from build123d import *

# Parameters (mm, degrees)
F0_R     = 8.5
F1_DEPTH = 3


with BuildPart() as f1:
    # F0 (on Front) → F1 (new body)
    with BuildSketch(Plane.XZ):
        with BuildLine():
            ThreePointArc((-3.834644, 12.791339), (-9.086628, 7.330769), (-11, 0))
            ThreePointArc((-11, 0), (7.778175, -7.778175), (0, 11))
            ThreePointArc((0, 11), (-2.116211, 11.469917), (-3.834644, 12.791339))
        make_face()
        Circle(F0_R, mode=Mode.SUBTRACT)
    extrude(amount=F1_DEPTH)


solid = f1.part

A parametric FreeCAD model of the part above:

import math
import FreeCAD as App
import Part
import Sketcher

V = App.Vector

doc = App.newDocument("Part")
body = doc.addObject("PartDesign::Body", "Body")

# Sketch on XZ plane
sketch1 = doc.addObject("Sketcher::SketchObject", "Sketch")
body.addObject(sketch1)
sketch1.AttachmentSupport = (doc.XZ_Plane, [""])
sketch1.MapMode = "FlatFace"
sketch1.addGeometry(Part.ArcOfCircle(Part.Circle(V(4, 0, 0), V(0, 0, 1), 15), math.radians(121), math.radians(180)), False)
sketch1.addGeometry(Part.ArcOfCircle(Part.Circle(V(0, 0, 0), V(0, 0, 1), 11), math.radians(180), math.radians(450)), False)
sketch1.addGeometry(Part.ArcOfCircle(Part.Circle(V(0, 16, 0), V(0, 0, 1), 5), math.radians(-140), math.radians(-90)), False)
sketch1.addGeometry(Part.Circle(V(0, 0, 0), V(0, 0, 1), 8.5), False)
sketch1.addConstraint(Sketcher.Constraint("Tangent", 0, 2, 1, 1))
sketch1.addConstraint(Sketcher.Constraint("Tangent", 1, 2, 2, 2))
sketch1.addConstraint(Sketcher.Constraint("Coincident", 2, 1, 0, 1))
sketch1.addConstraint(Sketcher.Constraint("Coincident", 1, 3, -1, 1))
sketch1.addConstraint(Sketcher.Constraint("Coincident", 3, 3, -1, 1))
sketch1.addConstraint(Sketcher.Constraint("PointOnObject", 0, 3, -1))
sketch1.addConstraint(Sketcher.Constraint("PointOnObject", 2, 3, -2))
sketch1.addConstraint(Sketcher.Constraint("Diameter", 3, 17.0))
sketch1.addConstraint(Sketcher.Constraint("Radius", 0, 14.999999))
sketch1.addConstraint(Sketcher.Constraint("Radius", 1, 11.0))
sketch1.addConstraint(Sketcher.Constraint("Radius", 2, 4.999999))
pad1 = doc.addObject("PartDesign::Pad", "Pad")
body.addObject(pad1)
pad1.Profile = sketch1
pad1.Length = 3

doc.recompute()
